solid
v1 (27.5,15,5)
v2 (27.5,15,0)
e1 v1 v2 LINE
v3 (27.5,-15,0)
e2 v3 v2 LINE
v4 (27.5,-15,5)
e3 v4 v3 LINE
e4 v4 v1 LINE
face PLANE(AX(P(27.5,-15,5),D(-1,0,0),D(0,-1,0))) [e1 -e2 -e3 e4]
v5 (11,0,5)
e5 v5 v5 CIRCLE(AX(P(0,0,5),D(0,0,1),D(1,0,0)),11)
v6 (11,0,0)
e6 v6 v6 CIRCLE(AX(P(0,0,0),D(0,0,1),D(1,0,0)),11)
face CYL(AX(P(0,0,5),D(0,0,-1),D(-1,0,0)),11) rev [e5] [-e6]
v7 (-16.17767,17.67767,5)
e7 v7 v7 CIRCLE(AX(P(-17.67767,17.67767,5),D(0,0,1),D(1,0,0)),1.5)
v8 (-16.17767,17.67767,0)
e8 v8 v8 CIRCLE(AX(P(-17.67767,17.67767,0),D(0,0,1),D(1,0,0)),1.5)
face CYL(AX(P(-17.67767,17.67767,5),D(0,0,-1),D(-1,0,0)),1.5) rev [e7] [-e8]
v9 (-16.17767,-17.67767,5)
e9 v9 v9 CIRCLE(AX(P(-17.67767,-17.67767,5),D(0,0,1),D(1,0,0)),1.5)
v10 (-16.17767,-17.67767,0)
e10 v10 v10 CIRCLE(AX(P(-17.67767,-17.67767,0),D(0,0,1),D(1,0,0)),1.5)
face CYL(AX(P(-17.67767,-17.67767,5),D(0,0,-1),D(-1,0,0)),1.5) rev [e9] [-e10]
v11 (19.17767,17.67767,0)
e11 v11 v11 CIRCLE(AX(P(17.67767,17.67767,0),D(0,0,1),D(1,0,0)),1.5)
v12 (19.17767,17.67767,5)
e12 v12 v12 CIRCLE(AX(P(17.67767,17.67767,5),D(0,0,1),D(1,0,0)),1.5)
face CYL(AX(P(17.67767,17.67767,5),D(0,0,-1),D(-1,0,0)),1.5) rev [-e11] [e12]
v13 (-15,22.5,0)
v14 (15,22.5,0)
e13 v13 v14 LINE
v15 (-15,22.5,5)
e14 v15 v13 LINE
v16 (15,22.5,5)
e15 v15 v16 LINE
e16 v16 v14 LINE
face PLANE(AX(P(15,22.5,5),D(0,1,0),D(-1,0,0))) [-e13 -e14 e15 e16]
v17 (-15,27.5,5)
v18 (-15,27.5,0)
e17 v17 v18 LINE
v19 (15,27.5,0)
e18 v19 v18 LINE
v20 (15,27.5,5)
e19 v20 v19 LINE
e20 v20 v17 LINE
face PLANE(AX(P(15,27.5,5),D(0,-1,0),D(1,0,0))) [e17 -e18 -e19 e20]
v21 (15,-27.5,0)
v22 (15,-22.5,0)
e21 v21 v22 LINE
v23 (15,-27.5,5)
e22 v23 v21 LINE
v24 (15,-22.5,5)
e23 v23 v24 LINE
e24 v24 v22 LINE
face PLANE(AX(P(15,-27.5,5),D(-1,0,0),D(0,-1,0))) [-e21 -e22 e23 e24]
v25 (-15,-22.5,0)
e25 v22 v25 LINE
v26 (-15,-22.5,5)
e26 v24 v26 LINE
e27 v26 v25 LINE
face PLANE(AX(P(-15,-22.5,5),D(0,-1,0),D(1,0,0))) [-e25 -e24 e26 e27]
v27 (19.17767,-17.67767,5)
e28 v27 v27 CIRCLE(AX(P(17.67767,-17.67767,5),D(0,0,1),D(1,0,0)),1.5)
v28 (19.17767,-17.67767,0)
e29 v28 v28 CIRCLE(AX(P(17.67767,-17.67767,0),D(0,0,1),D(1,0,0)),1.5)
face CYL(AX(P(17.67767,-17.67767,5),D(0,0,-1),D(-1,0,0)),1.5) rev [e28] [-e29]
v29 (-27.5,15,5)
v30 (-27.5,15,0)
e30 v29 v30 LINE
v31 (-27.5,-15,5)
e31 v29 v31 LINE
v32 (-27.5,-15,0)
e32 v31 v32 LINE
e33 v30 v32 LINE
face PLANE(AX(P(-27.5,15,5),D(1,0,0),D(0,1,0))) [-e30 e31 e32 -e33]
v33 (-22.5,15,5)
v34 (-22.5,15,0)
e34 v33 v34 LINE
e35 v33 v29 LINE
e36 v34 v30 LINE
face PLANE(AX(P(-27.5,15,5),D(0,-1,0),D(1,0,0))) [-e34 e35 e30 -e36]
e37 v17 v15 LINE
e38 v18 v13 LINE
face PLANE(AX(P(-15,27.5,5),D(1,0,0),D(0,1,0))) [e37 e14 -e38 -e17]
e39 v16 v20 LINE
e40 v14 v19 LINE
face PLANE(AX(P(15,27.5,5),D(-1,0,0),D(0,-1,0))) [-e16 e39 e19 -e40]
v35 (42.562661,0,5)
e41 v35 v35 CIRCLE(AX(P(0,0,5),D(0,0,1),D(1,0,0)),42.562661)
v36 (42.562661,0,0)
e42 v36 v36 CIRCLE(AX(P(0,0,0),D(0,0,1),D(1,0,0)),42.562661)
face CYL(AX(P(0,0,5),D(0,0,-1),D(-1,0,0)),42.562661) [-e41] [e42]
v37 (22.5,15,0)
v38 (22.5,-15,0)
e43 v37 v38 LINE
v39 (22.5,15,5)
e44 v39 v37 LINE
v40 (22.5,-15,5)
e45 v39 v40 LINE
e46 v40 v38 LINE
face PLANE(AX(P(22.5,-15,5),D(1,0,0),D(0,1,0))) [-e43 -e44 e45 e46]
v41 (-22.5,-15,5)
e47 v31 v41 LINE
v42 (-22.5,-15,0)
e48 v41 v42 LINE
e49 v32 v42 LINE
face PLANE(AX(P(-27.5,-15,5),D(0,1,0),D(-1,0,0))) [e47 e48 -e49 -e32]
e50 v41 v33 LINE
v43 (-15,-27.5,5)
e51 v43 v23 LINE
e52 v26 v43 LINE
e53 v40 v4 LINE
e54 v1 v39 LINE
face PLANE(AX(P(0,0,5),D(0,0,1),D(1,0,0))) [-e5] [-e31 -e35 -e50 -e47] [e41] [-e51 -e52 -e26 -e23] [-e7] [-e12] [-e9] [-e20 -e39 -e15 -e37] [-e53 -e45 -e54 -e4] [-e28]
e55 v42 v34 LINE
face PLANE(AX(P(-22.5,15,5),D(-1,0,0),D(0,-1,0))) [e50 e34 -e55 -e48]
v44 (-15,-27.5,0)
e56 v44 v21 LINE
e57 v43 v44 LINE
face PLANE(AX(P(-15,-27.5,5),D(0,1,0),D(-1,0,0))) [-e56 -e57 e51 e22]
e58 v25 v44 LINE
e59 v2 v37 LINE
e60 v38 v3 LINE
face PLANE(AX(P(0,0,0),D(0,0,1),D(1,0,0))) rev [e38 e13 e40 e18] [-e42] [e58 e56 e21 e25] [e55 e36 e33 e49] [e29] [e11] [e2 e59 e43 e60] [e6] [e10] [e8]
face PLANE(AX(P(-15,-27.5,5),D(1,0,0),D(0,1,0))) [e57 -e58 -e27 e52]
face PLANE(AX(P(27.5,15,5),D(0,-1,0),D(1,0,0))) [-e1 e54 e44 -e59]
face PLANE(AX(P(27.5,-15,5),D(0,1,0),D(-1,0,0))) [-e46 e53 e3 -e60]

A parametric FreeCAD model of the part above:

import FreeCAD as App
import Part
import Sketcher


def add_polygon(sketch, points):
    """Adds a closed chain of lines whose ends are joined by coincident constraints."""
    first, n = sketch.GeometryCount, len(points)
    for a, b in zip(points, points[1:] + points[:1]):
        sketch.addGeometry(Part.LineSegment(App.Vector(*a, 0), App.Vector(*b, 0)), False)
    for i in range(n):
        sketch.addConstraint(Sketcher.Constraint("Coincident", first + i, 2, first + (i + 1) % n, 1))

doc = App.newDocument("Part")
body = doc.addObject("PartDesign::Body", "Body")

sketch1 = body.newObject("Sketcher::SketchObject", "Sketch")
sketch1.AttachmentSupport = (doc.getObject("XY_Plane"), [""])
sketch1.MapMode = "FlatFace"
sketch1.addGeometry(Part.Circle(App.Vector(0, 0, 0), App.Vector(0, 0, 1), 43), False)
sketch1.addConstraint([
    Sketcher.Constraint("Coincident", 0, 3, -1, 1),
    Sketcher.Constraint("Diameter", 0, 85.125322),
])
pad1 = body.newObject("PartDesign::Pad", "Pad")
pad1.Profile = sketch1
pad1.Length = 5

sketch2 = body.newObject("Sketcher::SketchObject", "Sketch001")
sketch2.AttachmentSupport = (doc.getObject("XY_Plane"), [""])
sketch2.MapMode = "FlatFace"
sketch2.addGeometry(Part.Circle(App.Vector(0, 0, 0), App.Vector(0, 0, 1), 11), False)
sketch2.addConstraint([
    Sketcher.Constraint("Coincident", 0, 3, -1, 1),
    Sketcher.Constraint("Diameter", 0, 22.0),
])
pocket1 = body.newObject("PartDesign::Pocket", "Pocket")
pocket1.Profile = sketch2
pocket1.Type = "ThroughAll"
pocket1.Reversed = True

sketch3 = body.newObject("Sketcher::SketchObject", "Sketch002")
sketch3.AttachmentSupport = (doc.getObject("XY_Plane"), [""])
sketch3.MapMode = "FlatFace"
sketch3.addGeometry(Part.Circle(App.Vector(17.7, 17.7, 0), App.Vector(0, 0, 1), 1.5), False)
sketch3.addGeometry(Part.Circle(App.Vector(17.7, -17.7, 0), App.Vector(0, 0, 1), 1.5), False)
sketch3.addGeometry(Part.Circle(App.Vector(-17.7, -17.7, 0), App.Vector(0, 0, 1), 1.5), False)
sketch3.addGeometry(Part.Circle(App.Vector(-17.7, 17.7, 0), App.Vector(0, 0, 1), 1.5), False)
add_polygon(sketch3, [(-27.5, 15), (-27.5, -15), (-22.5, -15), (-22.5, 15)])
add_polygon(sketch3, [(-15, 27.5), (-15, 22.5), (15, 22.5), (15, 27.5)])
add_polygon(sketch3, [(22.5, 15), (22.5, -15), (27.5, -15), (27.5, 15)])
add_polygon(sketch3, [(-15, -22.5), (-15, -27.5), (15, -27.5), (15, -22.5)])
sketch3.addConstraint([
    Sketcher.Constraint("Vertical", 4),
    Sketcher.Constraint("Horizontal", 5),
    Sketcher.Constraint("Vertical", 6),
    Sketcher.Constraint("Horizontal", 7),
    Sketcher.Constraint("Vertical", 8),
    Sketcher.Constraint("Horizontal", 9),
    Sketcher.Constraint("Vertical", 10),
    Sketcher.Constraint("Horizontal", 11),
    Sketcher.Constraint("Vertical", 12),
    Sketcher.Constraint("Horizontal", 13),
    Sketcher.Constraint("Vertical", 14),
    Sketcher.Constraint("Horizontal", 15),
    Sketcher.Constraint("Vertical", 16),
    Sketcher.Constraint("Horizontal", 17),
    Sketcher.Constraint("Vertical", 18),
    Sketcher.Constraint("Horizontal", 19),
    Sketcher.Constraint("Equal", 0, 1),
    Sketcher.Constraint("Equal", 1, 2),
    Sketcher.Constraint("Equal", 2, 3),
    Sketcher.Constraint("Symmetric", 0, 3, 2, 3, -1, 1),
    Sketcher.Constraint("Symmetric", 1, 3, 3, 3, -1, 1),
    Sketcher.Constraint("Symmetric", 6, 2, 12, 2, -1, 1),
    Sketcher.Constraint("Symmetric", 4, 2, 14, 2, -1, 1),
    Sketcher.Constraint("Symmetric", 10, 2, 16, 2, -1, 1),
    Sketcher.Constraint("Symmetric", 8, 2, 18, 2, -1, 1),
    Sketcher.Constraint("Symmetric", 1, 3, 2, 3, -2),
    Sketcher.Constraint("Horizontal", 5, 2, 12, 2),
    Sketcher.Constraint("Vertical", 11, 2, 16, 2),
    Sketcher.Constraint("Equal", 19, 4),
    Sketcher.Constraint("Equal", 15, 8),
    Sketcher.Constraint("Diameter", 0, 3.0),
    Sketcher.Constraint("DistanceX", 5, 1, 5, 2, 5.0),
    Sketcher.Constraint("DistanceX", 9, 1, 9, 2, 30.0),
    Sketcher.Constraint("DistanceX", 4, 2, -1, 1, 27.5),
    Sketcher.Constraint("DistanceY", -1, 1, 8, 2, 22.5),
    Sketcher.Constraint("DistanceX", -1, 1, 0, 3, 17.67767),
    Sketcher.Constraint("DistanceY", -1, 1, 0, 3, 17.67767),
])
pocket2 = body.newObject("PartDesign::Pocket", "Pocket001")
pocket2.Profile = sketch3
pocket2.Type = "ThroughAll"
pocket2.Reversed = True

doc.recompute()
